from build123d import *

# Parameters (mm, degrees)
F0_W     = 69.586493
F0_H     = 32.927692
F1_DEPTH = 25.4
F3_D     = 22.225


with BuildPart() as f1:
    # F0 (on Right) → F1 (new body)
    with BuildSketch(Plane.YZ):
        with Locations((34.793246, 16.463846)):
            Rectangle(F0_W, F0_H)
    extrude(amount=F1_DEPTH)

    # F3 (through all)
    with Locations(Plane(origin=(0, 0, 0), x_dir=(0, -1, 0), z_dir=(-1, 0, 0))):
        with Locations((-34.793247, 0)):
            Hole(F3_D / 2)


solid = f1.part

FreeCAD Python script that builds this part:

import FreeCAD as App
import Part
import Sketcher
from FreeCAD import Vector
Q = App.Units.Quantity


def add_polygon(sketch, points):
    """Adds a closed chain of lines whose ends are joined by coincident constraints."""
    first, n = sketch.GeometryCount, len(points)
    for a, b in zip(points, points[1:] + points[:1]):
        sketch.addGeometry(Part.LineSegment(App.Vector(*a, 0), App.Vector(*b, 0)), False)
    for i in range(n):
        sketch.addConstraint(Sketcher.Constraint("Coincident", first + i, 2, first + (i + 1) % n, 1))

doc = App.newDocument("Part")
body = doc.addObject("PartDesign::Body", "Body")

# Sketch on YZ plane
sketch1 = body.newObject("Sketcher::SketchObject", "Sketch")
sketch1.AttachmentSupport = (doc.getObject("YZ_Plane"), [""])
sketch1.MapMode = "FlatFace"
add_polygon(sketch1, [(0, 33), (0, 0), (70, 0), (70, 33)])  # lines 0-3
sketch1.addConstraint(Sketcher.Constraint("Vertical", 0))
sketch1.addConstraint(Sketcher.Constraint("Horizontal", 1))
sketch1.addConstraint(Sketcher.Constraint("Vertical", 2))
sketch1.addConstraint(Sketcher.Constraint("Horizontal", 3))
sketch1.addConstraint(Sketcher.Constraint("Coincident", 0, 2, -1, 1))
sketch1.addConstraint(Sketcher.Constraint("DistanceX", 1, 1, 1, 2, 69.586493))
sketch1.addConstraint(Sketcher.Constraint("DistanceY", 0, 2, 0, 1, 32.927692))
pad1 = body.newObject("PartDesign::Pad", "Pad")
pad1.Profile = sketch1
pad1.Length = Q("1 in")

# Sketch on YZ plane
sketch2 = body.newObject("Sketcher::SketchObject", "Sketch001")
sketch2.AttachmentSupport = (doc.getObject("YZ_Plane"), [""])
sketch2.MapMode = "FlatFace"
sketch2.addGeometry(Part.Circle(Vector(35, 0, 0), Vector(0, 0, 1), 11), False)
sketch2.addConstraint(Sketcher.Constraint("PointOnObject", 0, 3, -1))
sketch2.addConstraint(Sketcher.Constraint("Diameter", 0, Q("0.875 in")))
sketch2.addConstraint(Sketcher.Constraint("DistanceX", -1, 1, 0, 3, 34.793247))
doc.recompute()
hole = body.newObject("PartDesign::Hole", "Hole")
hole.Profile = sketch2
hole.ThreadType = "None"
hole.Diameter = Q("0.875 in")
hole.DepthType = "ThroughAll"
hole.Reversed = True

doc.recompute()
